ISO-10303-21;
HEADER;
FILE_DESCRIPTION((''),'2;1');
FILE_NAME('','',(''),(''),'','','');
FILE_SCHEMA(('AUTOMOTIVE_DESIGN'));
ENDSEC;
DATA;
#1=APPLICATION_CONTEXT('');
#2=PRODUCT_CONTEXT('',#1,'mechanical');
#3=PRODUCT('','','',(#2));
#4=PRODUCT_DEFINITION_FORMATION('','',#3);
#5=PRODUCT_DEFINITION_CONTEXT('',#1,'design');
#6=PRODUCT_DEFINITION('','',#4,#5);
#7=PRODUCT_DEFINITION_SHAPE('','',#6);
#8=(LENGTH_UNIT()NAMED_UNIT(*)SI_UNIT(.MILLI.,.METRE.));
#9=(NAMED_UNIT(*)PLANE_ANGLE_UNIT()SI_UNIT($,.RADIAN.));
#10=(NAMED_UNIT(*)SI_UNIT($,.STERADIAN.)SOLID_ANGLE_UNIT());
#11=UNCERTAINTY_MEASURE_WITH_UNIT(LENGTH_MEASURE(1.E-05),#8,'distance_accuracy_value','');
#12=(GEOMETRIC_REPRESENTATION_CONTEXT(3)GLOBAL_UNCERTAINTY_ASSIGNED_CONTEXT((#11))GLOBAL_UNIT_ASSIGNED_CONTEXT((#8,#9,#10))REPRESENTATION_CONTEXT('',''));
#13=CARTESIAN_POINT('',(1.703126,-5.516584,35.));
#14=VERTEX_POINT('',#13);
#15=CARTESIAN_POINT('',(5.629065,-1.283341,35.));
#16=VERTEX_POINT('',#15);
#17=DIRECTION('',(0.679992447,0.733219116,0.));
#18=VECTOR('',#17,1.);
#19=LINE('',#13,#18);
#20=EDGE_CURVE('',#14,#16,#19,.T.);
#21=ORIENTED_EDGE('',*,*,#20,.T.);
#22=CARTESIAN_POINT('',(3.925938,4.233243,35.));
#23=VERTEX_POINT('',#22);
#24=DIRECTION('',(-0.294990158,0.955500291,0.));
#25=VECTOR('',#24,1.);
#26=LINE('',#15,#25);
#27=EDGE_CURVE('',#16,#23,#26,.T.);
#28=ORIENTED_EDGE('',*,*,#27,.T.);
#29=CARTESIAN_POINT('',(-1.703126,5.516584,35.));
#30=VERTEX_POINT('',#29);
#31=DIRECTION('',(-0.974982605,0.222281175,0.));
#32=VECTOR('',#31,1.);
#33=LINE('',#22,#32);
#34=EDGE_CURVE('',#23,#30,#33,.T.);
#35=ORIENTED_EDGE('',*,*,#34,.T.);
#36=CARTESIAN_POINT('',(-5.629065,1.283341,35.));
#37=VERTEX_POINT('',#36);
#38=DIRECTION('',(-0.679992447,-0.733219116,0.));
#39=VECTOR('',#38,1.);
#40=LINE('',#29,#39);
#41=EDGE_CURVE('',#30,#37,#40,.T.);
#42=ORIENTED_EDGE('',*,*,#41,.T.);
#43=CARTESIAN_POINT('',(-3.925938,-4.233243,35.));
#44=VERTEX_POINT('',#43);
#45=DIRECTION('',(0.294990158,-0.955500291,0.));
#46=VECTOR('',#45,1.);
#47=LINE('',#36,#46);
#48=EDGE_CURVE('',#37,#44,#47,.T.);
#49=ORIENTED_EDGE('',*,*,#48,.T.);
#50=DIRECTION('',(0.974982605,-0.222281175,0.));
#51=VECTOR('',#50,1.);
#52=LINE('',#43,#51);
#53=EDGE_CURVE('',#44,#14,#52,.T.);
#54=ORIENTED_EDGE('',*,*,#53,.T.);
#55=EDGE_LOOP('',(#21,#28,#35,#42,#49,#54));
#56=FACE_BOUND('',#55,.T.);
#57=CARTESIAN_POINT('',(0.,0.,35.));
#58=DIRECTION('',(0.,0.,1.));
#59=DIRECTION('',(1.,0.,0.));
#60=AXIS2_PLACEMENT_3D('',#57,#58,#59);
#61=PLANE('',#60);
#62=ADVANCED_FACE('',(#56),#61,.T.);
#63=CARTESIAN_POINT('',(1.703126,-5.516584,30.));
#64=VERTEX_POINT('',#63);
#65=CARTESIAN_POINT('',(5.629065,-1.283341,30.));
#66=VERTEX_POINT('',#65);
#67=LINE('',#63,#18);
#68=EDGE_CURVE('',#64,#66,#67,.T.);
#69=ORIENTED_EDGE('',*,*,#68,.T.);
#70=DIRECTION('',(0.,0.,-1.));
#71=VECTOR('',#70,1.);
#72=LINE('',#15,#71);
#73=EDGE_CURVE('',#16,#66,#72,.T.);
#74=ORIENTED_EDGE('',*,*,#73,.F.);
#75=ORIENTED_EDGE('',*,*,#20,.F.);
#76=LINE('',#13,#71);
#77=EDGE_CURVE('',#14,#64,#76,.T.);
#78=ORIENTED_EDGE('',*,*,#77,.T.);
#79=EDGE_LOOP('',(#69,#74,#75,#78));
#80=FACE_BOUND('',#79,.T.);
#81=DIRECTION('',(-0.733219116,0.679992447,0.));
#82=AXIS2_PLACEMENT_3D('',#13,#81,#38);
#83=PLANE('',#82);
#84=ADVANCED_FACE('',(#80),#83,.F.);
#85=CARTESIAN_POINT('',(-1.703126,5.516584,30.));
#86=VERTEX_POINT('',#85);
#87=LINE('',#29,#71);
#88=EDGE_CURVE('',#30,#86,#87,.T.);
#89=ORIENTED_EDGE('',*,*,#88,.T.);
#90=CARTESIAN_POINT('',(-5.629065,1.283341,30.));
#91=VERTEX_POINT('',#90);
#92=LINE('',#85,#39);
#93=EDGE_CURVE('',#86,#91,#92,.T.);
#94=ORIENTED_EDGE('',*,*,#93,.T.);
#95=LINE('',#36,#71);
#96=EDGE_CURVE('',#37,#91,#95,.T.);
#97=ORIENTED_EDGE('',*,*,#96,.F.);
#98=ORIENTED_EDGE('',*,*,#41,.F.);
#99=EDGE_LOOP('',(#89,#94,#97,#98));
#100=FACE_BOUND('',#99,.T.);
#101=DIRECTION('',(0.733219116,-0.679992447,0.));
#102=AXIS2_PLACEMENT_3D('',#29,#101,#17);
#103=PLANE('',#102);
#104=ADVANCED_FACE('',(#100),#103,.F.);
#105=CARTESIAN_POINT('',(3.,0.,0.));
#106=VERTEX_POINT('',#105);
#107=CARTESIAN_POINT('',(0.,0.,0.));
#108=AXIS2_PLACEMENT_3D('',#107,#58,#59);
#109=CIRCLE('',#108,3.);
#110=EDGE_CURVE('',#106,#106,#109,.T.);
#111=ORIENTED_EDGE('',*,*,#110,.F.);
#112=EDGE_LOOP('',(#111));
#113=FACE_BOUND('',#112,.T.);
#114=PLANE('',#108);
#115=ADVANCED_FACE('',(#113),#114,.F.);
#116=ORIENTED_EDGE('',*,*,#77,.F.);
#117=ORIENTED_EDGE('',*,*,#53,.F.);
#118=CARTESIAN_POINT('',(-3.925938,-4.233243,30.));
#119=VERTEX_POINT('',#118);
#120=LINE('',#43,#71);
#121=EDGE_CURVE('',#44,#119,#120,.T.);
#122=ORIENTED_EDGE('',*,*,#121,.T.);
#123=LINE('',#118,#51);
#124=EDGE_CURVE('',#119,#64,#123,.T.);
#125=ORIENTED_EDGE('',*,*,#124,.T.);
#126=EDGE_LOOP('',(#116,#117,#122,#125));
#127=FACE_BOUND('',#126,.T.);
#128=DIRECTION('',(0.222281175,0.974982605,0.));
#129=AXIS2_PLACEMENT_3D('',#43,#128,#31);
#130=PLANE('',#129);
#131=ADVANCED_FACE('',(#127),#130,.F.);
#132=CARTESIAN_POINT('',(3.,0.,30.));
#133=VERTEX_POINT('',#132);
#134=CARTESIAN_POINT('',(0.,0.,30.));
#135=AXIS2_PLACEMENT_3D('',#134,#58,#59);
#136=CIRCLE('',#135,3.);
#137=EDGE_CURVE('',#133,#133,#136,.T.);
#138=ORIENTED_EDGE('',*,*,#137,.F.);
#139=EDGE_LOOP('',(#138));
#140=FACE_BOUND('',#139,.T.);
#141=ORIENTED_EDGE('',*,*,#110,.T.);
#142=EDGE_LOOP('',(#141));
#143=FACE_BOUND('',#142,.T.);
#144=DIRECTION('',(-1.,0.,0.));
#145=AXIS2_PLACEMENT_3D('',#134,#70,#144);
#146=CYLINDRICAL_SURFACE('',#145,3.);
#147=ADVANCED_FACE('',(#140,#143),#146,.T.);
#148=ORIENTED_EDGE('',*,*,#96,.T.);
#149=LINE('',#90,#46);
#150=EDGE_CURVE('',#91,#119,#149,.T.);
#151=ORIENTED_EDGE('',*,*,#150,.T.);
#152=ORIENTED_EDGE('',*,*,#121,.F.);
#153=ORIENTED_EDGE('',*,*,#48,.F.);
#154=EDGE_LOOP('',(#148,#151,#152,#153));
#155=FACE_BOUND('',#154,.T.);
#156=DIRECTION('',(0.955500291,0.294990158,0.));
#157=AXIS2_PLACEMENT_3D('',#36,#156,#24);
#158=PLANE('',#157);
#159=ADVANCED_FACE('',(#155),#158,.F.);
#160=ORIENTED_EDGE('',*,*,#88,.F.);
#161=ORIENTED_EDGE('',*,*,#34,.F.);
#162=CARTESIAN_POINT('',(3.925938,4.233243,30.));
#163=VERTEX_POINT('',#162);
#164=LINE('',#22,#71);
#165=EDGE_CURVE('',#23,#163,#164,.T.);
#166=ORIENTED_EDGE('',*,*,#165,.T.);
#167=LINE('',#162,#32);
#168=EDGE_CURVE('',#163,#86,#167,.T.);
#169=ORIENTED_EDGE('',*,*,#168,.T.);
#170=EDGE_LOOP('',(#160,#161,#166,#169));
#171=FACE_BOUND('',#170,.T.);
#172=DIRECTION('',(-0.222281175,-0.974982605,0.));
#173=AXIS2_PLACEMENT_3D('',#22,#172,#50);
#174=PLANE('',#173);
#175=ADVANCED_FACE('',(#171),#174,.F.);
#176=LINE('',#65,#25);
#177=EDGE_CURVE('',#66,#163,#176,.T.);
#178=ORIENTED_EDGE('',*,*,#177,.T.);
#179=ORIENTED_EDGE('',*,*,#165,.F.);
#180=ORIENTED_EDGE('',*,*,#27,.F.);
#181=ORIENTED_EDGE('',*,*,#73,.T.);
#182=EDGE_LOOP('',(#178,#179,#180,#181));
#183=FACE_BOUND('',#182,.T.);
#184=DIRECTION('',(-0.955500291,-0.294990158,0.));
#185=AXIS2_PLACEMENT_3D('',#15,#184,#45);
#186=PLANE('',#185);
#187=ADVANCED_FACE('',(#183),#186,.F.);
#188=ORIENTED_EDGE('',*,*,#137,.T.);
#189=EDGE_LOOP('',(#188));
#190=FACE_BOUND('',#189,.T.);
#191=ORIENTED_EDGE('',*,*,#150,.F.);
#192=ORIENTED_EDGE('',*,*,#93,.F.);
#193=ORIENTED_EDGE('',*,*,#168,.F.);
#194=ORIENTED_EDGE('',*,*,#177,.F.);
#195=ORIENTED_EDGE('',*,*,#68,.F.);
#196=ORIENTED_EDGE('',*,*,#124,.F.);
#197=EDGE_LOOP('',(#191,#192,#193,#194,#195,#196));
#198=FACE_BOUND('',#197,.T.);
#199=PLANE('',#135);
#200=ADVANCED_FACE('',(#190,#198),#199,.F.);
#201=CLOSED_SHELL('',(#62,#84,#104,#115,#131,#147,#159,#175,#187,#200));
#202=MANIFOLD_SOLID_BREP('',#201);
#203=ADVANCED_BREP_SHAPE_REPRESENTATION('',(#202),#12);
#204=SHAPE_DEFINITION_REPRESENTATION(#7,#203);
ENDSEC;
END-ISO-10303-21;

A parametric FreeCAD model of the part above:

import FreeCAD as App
import Part
import Sketcher


def add_polygon(sketch, points):
    """Adds a closed chain of lines whose ends are joined by coincident constraints."""
    first, n = sketch.GeometryCount, len(points)
    for a, b in zip(points, points[1:] + points[:1]):
        sketch.addGeometry(Part.LineSegment(App.Vector(*a, 0), App.Vector(*b, 0)), False)
    for i in range(n):
        sketch.addConstraint(Sketcher.Constraint("Coincident", first + i, 2, first + (i + 1) % n, 1))

doc = App.newDocument("Part")
body = doc.addObject("PartDesign::Body", "Body")

# Sketch on XY plane
sketch1 = doc.addObject("Sketcher::SketchObject", "Sketch")
body.addObject(sketch1)
sketch1.AttachmentSupport = (doc.XY_Plane, [""])
sketch1.MapMode = "FlatFace"
sketch1.addGeometry(Part.Circle(App.Vector(0, 0, 0), App.Vector(0, 0, 1), 3), False)
sketch1.addConstraint(Sketcher.Constraint("Coincident", 0, 3, -1, 1))
sketch1.addConstraint(Sketcher.Constraint("Diameter", 0, 6.0))
pad1 = doc.addObject("PartDesign::Pad", "Pad")
body.addObject(pad1)
pad1.Profile = sketch1
pad1.Length = 30

# Sketch on XY plane
sketch2 = doc.addObject("Sketcher::SketchObject", "Sketch001")
body.addObject(sketch2)
sketch2.AttachmentSupport = (doc.XY_Plane, [""])
sketch2.MapMode = "FlatFace"
sketch2.AttachmentOffset = App.Placement(App.Vector(0, 0, 30), App.Rotation())
add_polygon(sketch2, [(3.925938, 4.233243), (-1.703126, 5.516584), (-5.629065, 1.283341), (-3.925938, -4.233243), (1.703126, -5.516584), (5.629065, -1.283341)])  # lines 0-5
sketch2.addConstraint(Sketcher.Constraint("Symmetric", 0, 2, 3, 2, -1, 1))
sketch2.addConstraint(Sketcher.Constraint("Symmetric", 1, 2, 4, 2, -1, 1))
sketch2.addConstraint(Sketcher.Constraint("Symmetric", 2, 2, 5, 2, -1, 1))
sketch2.addConstraint(Sketcher.Constraint("Equal", 0, 1))
sketch2.addConstraint(Sketcher.Constraint("Equal", 1, 2))
sketch2.addConstraint(Sketcher.Constraint("DistanceY", 2, 2, 4, 2, 2.949902))
sketch2.addConstraint(Sketcher.Constraint("DistanceY", -1, 1, 1, 2, 1.283341))
sketch2.addConstraint(Sketcher.Constraint("DistanceX", 2, 2, -1, 1, 3.925938))
sketch2.addConstraint(Sketcher.Constraint("DistanceX", 1, 2, 0, 2, 3.925938))
pad2 = doc.addObject("PartDesign::Pad", "Pad001")
body.addObject(pad2)
pad2.Profile = sketch2
pad2.Length = 5

doc.recompute()
